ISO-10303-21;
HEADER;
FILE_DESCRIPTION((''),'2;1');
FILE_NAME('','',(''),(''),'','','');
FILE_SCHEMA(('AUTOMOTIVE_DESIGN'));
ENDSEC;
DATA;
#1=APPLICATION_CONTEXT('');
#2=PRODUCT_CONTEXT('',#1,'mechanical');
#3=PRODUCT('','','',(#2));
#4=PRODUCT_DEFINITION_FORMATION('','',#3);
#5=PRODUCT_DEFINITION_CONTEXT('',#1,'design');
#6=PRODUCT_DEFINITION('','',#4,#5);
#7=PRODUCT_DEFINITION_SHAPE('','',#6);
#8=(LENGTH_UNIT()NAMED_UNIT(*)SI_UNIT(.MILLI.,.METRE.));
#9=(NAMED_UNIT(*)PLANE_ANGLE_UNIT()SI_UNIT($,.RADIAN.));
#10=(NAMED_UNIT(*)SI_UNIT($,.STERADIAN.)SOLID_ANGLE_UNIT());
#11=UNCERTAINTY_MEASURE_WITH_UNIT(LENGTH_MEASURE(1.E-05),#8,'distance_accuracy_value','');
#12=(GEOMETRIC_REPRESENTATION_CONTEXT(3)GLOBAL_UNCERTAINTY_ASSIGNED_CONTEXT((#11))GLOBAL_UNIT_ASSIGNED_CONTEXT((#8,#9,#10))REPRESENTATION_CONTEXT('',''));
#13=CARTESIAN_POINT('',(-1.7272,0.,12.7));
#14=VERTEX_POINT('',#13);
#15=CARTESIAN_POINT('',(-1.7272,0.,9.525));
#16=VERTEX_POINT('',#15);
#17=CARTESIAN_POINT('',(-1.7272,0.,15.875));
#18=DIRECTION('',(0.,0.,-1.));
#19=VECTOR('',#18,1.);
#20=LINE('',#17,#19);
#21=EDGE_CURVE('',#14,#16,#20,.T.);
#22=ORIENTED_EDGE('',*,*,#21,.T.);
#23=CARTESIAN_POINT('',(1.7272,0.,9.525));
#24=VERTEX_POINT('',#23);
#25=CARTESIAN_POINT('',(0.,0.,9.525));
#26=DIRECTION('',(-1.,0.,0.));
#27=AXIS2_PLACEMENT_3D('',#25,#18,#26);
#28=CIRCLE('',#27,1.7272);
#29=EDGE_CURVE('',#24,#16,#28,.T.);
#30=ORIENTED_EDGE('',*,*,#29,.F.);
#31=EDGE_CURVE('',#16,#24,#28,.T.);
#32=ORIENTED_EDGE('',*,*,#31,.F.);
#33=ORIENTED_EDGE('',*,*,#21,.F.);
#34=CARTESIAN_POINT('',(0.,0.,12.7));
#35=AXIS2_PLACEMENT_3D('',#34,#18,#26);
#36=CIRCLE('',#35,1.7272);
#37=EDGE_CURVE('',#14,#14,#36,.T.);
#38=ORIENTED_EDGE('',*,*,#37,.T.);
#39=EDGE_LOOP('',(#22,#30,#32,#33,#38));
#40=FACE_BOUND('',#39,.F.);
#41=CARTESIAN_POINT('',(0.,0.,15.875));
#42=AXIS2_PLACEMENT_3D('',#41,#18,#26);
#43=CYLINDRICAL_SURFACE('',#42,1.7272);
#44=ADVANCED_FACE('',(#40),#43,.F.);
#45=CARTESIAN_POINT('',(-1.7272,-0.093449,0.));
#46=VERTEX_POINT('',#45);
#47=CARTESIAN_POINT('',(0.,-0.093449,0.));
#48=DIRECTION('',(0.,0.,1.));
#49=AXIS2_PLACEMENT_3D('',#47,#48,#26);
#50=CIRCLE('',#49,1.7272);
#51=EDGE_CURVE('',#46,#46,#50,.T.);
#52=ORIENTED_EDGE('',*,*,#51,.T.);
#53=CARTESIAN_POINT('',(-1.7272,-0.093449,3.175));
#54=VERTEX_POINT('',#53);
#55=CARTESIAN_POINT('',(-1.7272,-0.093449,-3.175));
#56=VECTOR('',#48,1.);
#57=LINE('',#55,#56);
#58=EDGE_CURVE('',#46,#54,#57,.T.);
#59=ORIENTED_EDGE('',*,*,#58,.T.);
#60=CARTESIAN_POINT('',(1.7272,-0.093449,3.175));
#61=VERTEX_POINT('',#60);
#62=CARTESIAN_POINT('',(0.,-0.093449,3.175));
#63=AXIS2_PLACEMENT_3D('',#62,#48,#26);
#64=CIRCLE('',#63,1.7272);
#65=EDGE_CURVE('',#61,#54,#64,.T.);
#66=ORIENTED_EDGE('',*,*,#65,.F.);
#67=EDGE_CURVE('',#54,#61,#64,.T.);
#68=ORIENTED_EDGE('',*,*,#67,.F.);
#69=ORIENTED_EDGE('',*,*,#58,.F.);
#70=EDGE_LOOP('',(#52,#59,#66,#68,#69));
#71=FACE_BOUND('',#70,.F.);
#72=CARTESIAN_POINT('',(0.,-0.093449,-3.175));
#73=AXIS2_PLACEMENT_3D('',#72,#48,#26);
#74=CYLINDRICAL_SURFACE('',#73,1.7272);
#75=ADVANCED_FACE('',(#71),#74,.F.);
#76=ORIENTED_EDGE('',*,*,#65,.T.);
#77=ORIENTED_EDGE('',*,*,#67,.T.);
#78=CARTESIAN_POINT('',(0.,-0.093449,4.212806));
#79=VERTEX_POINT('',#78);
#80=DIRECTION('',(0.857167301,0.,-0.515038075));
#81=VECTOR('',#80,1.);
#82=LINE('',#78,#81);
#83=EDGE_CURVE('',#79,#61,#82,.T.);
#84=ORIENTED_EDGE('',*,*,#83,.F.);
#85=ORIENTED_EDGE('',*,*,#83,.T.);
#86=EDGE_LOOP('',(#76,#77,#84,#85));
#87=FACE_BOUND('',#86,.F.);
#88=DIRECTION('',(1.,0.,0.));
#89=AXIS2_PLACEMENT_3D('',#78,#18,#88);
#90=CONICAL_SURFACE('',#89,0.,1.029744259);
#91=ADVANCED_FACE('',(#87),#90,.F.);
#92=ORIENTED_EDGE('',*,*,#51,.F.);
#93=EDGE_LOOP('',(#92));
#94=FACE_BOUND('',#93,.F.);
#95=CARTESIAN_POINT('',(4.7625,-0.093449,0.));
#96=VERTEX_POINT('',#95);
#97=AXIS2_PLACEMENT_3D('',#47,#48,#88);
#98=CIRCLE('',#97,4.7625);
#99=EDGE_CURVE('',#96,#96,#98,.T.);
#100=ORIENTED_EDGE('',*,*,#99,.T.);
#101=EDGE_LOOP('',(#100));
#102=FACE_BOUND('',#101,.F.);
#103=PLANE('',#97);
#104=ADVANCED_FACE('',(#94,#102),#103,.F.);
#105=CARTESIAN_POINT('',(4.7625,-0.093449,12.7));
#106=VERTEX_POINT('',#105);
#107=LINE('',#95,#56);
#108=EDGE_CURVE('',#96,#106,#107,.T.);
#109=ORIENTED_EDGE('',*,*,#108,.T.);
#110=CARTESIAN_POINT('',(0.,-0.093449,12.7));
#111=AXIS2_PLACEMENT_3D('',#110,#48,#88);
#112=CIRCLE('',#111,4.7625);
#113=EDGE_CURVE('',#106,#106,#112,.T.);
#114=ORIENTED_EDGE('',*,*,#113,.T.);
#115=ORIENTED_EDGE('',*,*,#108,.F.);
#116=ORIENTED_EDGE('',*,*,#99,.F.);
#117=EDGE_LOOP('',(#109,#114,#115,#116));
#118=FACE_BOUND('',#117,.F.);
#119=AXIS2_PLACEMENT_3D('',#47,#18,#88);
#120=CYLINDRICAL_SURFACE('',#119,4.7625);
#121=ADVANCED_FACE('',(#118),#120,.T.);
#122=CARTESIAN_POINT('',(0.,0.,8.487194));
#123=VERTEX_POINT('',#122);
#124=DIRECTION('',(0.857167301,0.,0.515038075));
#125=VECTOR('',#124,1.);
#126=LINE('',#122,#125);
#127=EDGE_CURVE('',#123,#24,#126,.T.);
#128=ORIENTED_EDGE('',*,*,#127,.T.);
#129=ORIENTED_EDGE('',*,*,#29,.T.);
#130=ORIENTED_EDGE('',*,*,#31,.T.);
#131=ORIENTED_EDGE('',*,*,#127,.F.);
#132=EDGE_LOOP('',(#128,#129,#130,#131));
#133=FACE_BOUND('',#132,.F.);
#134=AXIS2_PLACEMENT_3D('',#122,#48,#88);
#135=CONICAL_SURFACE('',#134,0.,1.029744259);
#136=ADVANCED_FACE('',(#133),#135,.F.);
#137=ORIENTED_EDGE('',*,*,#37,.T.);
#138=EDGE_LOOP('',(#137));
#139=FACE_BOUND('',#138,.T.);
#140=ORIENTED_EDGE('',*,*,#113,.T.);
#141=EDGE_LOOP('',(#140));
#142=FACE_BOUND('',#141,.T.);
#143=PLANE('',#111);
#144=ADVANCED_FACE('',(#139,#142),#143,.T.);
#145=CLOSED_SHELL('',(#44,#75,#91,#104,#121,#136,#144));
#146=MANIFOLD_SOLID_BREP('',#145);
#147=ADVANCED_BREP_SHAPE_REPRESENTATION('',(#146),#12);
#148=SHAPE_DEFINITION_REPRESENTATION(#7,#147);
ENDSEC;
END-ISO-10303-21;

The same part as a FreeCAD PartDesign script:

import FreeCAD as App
import Part
import Sketcher
Q = App.Units.Quantity

doc = App.newDocument("Part")
body = doc.addObject("PartDesign::Body", "Body")

# Sketch on XY plane
sketch1 = body.newObject("Sketcher::SketchObject", "Sketch")
sketch1.AttachmentSupport = (doc.getObject("XY_Plane"), [""])
sketch1.MapMode = "FlatFace"
sketch1.addGeometry(Part.Circle(App.Vector(0, -0.093449, 0), App.Vector(0, 0, 1), 4.7625), False)
sketch1.addConstraint(Sketcher.Constraint("PointOnObject", 0, 3, -2))
sketch1.addConstraint(Sketcher.Constraint("Diameter", 0, Q("0.375 in")))
sketch1.addConstraint(Sketcher.Constraint("DistanceY", 0, 3, -1, 1, Q("0.093449 mm")))
pad1 = body.newObject("PartDesign::Pad", "Pad")
pad1.Profile = sketch1
pad1.Length = Q("0.5 in")

# Sketch on XY plane
sketch2 = body.newObject("Sketcher::SketchObject", "Sketch001")
sketch2.AttachmentSupport = (doc.getObject("XY_Plane"), [""])
sketch2.MapMode = "FlatFace"
sketch2.AttachmentOffset = App.Placement(App.Vector(0, 0, 0.5 * 25.4), App.Rotation())
sketch2.addGeometry(Part.Circle(App.Vector(0, 0, 0), App.Vector(0, 0, 1), 1.7272), False)
sketch2.addConstraint(Sketcher.Constraint("Coincident", 0, 3, -1, 1))
sketch2.addConstraint(Sketcher.Constraint("Diameter", 0, Q("0.136 in")))
doc.recompute()
hole = body.newObject("PartDesign::Hole", "Hole")
hole.Profile = sketch2
hole.ThreadType = "None"
hole.Diameter = Q("0.136 in")
hole.DepthType = "Dimension"
hole.Depth = Q("0.125 in")
hole.DrillPoint = "Angled"
hole.DrillPointAngle = 118

# Sketch on XY plane
sketch3 = body.newObject("Sketcher::SketchObject", "Sketch002")
sketch3.AttachmentSupport = (doc.getObject("XY_Plane"), [""])
sketch3.MapMode = "FlatFace"
sketch3.addGeometry(Part.Circle(App.Vector(0, -0.093449, 0), App.Vector(0, 0, 1), 1.7272), False)
sketch3.addConstraint(Sketcher.Constraint("PointOnObject", 0, 3, -2))
sketch3.addConstraint(Sketcher.Constraint("Diameter", 0, Q("0.136 in")))
sketch3.addConstraint(Sketcher.Constraint("DistanceY", 0, 3, -1, 1, Q("0.093449 mm")))
doc.recompute()
hole2 = body.newObject("PartDesign::Hole", "Hole001")
hole2.Profile = sketch3
hole2.ThreadType = "None"
hole2.Diameter = Q("0.136 in")
hole2.DepthType = "Dimension"
hole2.Depth = Q("0.125 in")
hole2.DrillPoint = "Angled"
hole2.DrillPointAngle = 118
hole2.Reversed = True

doc.recompute()
